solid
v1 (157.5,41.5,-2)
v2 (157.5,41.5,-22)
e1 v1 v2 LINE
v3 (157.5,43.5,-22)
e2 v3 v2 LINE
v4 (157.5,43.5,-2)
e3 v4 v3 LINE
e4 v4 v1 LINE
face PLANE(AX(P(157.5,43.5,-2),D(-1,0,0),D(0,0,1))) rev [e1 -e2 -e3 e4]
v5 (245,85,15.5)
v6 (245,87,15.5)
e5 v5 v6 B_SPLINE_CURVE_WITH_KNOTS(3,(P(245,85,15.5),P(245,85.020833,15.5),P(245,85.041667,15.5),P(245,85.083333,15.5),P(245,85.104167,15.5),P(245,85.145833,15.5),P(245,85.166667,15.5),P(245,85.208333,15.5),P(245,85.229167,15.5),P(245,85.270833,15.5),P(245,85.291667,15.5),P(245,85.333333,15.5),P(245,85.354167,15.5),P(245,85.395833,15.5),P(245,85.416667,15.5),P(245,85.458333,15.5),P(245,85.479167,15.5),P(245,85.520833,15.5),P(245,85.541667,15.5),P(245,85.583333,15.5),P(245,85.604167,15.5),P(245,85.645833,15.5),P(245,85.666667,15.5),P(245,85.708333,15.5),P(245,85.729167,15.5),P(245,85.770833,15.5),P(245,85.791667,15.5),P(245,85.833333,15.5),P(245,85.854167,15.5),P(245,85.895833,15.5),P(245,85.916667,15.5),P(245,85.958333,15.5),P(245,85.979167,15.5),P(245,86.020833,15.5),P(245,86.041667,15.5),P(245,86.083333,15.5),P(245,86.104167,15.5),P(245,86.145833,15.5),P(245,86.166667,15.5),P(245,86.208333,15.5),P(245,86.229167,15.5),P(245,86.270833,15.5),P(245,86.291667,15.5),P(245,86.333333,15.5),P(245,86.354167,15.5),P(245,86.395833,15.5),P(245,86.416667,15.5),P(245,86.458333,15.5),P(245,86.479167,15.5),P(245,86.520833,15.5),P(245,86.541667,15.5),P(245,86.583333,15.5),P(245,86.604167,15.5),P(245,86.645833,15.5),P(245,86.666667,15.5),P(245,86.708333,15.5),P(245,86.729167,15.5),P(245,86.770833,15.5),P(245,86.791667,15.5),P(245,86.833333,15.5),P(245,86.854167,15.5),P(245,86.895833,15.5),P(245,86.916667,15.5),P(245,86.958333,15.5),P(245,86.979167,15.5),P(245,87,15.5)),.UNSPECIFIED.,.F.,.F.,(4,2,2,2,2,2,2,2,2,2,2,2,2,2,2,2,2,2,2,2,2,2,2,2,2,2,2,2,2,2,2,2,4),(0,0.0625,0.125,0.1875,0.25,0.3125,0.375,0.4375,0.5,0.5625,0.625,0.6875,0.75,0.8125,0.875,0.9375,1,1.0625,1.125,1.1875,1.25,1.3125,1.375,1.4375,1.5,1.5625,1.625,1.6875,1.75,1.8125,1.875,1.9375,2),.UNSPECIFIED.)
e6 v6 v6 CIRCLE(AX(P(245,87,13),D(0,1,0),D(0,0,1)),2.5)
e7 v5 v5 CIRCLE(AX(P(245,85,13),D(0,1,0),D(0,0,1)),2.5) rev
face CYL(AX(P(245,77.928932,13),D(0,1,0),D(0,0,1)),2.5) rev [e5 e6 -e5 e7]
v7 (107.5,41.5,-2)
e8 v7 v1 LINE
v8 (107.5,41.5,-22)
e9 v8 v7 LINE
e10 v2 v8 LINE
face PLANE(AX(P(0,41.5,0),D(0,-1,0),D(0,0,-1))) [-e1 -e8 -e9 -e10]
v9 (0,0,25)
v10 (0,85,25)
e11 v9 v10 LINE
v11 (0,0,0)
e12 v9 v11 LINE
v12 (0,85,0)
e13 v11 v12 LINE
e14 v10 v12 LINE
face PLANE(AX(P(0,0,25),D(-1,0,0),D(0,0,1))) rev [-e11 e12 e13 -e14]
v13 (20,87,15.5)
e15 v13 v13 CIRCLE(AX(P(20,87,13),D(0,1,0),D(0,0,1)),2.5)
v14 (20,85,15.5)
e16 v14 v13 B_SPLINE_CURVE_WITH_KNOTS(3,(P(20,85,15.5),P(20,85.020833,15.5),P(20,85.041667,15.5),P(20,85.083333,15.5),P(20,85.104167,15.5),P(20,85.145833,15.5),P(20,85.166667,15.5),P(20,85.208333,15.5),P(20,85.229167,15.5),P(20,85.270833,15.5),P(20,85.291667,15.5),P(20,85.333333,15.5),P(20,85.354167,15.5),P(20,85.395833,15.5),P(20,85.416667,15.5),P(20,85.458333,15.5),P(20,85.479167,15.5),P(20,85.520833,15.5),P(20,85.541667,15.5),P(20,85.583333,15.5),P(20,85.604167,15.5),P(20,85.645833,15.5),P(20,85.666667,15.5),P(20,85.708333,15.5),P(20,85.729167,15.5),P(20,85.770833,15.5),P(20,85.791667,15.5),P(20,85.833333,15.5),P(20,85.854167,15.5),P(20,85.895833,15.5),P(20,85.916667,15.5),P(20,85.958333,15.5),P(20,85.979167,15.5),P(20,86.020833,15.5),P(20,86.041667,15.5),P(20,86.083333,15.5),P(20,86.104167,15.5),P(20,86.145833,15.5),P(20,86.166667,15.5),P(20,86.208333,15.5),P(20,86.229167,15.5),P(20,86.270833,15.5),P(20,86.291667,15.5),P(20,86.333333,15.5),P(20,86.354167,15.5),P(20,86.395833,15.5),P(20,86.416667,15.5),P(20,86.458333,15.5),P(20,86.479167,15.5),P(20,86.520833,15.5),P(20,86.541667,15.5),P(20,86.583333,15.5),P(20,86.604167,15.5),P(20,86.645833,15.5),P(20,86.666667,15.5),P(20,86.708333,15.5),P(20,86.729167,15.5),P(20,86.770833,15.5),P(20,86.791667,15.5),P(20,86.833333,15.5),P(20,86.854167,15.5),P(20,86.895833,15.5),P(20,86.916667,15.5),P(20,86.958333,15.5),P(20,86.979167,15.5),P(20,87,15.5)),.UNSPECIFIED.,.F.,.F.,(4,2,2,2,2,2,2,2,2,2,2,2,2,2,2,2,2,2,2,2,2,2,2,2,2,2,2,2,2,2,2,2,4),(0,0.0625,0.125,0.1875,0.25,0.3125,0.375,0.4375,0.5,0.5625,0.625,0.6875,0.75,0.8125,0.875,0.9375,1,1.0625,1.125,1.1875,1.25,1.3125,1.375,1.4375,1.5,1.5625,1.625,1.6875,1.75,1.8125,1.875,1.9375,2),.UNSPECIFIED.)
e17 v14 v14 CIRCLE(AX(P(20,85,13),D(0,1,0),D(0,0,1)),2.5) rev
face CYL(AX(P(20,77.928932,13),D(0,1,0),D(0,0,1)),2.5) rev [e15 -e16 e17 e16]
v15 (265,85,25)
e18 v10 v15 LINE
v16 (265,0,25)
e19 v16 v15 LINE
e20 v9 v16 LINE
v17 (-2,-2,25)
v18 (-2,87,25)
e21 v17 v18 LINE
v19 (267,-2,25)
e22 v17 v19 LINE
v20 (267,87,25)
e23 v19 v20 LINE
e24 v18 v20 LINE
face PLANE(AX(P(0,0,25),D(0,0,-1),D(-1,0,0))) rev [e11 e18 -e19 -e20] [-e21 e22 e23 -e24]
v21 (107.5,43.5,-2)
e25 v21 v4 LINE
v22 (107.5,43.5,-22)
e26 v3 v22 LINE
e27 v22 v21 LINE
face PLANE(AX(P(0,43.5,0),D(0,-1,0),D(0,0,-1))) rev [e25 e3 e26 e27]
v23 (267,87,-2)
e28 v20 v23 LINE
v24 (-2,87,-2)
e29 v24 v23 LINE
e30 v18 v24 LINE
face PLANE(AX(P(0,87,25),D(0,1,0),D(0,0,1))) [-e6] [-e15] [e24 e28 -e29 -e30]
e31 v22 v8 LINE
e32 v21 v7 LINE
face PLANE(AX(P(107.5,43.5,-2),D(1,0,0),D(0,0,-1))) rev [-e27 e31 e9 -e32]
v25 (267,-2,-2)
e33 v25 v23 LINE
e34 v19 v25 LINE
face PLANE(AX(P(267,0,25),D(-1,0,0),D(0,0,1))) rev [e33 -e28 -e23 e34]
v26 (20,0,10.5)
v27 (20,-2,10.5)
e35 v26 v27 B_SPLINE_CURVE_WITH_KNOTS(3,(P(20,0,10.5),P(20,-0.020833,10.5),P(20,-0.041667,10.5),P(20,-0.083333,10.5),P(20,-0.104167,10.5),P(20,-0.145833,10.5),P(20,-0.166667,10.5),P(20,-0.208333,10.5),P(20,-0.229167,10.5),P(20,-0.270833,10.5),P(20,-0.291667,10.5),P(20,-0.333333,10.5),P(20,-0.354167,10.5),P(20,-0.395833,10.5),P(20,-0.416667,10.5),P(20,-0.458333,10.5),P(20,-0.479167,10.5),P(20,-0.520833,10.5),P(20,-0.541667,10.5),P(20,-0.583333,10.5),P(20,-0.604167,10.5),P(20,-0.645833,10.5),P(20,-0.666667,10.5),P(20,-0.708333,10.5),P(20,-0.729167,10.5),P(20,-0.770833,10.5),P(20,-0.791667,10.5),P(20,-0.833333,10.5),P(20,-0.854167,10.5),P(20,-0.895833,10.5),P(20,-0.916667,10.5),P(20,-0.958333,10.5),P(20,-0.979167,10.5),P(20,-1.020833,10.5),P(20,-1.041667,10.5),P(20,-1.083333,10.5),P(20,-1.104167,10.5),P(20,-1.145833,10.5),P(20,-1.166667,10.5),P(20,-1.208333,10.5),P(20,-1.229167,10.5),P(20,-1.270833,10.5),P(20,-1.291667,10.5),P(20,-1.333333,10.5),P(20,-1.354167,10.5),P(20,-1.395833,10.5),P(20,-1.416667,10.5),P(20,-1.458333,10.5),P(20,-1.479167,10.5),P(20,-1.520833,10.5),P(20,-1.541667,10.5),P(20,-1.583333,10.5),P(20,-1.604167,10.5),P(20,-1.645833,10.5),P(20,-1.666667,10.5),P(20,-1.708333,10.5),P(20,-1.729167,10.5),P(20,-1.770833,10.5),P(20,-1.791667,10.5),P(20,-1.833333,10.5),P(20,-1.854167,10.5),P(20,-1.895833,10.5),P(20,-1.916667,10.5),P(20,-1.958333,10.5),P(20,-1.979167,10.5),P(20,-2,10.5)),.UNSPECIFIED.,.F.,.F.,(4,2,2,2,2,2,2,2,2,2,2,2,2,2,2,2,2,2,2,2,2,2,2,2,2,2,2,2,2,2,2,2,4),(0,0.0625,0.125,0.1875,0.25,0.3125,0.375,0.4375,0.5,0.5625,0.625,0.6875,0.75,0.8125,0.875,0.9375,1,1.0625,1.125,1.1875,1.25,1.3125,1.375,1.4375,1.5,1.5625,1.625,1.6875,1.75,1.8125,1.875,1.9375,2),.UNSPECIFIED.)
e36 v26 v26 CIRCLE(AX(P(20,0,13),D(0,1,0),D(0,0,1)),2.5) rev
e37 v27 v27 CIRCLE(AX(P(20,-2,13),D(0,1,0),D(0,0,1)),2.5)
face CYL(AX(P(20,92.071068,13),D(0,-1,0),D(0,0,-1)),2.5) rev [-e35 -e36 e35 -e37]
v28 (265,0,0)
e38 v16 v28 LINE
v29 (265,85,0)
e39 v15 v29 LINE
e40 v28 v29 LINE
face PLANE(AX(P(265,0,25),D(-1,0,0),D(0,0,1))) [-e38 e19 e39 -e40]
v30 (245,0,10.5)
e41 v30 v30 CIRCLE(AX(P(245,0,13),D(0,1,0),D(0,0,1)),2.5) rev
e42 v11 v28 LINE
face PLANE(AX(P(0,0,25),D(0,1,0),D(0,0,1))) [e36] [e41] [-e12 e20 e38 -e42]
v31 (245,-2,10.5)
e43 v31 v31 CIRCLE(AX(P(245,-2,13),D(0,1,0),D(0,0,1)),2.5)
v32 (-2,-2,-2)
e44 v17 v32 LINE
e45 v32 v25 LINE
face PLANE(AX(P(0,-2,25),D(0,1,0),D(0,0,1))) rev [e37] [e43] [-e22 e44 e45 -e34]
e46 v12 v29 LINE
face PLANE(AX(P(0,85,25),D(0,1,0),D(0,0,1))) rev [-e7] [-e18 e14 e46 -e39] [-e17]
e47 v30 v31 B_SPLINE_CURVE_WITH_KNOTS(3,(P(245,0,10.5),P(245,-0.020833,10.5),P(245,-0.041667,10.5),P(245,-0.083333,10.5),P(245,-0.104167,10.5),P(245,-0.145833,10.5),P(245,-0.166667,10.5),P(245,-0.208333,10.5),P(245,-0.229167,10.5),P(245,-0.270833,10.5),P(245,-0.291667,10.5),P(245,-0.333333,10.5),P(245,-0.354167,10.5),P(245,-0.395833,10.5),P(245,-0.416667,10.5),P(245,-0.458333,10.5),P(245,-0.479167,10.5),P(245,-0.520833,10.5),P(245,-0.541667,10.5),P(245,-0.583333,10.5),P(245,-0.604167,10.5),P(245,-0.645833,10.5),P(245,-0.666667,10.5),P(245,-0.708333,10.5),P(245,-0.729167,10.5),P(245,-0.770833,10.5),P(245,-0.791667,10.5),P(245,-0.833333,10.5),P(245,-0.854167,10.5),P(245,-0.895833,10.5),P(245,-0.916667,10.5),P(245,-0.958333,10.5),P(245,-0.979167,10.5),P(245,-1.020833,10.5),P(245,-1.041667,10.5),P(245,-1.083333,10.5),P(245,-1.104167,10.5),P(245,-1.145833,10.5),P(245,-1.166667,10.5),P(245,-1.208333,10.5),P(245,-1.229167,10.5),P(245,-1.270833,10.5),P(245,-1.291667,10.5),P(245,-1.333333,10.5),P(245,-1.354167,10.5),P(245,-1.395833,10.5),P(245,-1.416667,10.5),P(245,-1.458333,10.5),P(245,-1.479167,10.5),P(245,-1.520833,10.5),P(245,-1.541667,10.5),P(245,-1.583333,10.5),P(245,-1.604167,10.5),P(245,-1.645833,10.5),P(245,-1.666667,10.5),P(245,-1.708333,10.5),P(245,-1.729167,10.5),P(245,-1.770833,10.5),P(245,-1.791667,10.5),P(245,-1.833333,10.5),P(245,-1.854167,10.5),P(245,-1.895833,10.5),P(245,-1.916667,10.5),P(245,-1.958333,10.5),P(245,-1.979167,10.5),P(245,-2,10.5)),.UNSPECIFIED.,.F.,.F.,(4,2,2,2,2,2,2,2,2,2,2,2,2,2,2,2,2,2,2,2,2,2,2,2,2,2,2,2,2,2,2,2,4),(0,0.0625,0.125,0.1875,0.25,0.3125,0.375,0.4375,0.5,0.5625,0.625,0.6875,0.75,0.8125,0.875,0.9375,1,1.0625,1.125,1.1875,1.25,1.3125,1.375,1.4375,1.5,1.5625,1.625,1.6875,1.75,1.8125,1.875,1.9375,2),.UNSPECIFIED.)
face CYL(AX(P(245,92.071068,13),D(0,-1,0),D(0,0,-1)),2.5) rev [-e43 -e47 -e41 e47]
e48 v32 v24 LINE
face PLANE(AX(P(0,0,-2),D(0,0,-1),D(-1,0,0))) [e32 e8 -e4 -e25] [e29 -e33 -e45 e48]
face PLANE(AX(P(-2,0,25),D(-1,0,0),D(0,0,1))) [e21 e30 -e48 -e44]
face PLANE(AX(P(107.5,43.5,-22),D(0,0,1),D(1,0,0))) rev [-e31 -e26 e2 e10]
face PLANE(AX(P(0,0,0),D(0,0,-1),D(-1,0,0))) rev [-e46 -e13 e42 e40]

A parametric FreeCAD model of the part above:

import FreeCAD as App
import Part
import Sketcher
Q = App.Units.Quantity


def faces_at(feature, points):
    """Names of the faces that lie closest to the given points."""
    faces = feature.Shape.Faces
    near = lambda p: min(range(len(faces)), key=lambda i: faces[i].distToShape(Part.Vertex(*p))[0])
    return sorted({f"Face{near(p) + 1}" for p in points})


def add_polygon(sketch, points):
    """Adds a closed chain of lines whose ends are joined by coincident constraints."""
    first, n = sketch.GeometryCount, len(points)
    for a, b in zip(points, points[1:] + points[:1]):
        sketch.addGeometry(Part.LineSegment(App.Vector(*a, 0), App.Vector(*b, 0)), False)
    for i in range(n):
        sketch.addConstraint(Sketcher.Constraint("Coincident", first + i, 2, first + (i + 1) % n, 1))

doc = App.newDocument("Part")
body = doc.addObject("PartDesign::Body", "Body")

sketch1 = doc.addObject("Sketcher::SketchObject", "Sketch")
body.addObject(sketch1)
sketch1.AttachmentSupport = (doc.XY_Plane, [""])
sketch1.MapMode = "FlatFace"
add_polygon(sketch1, [(0, 85), (0, 0), (265, 0), (265, 85)])
sketch1.addConstraint(Sketcher.Constraint("Vertical", 0))
sketch1.addConstraint(Sketcher.Constraint("Horizontal", 1))
sketch1.addConstraint(Sketcher.Constraint("Vertical", 2))
sketch1.addConstraint(Sketcher.Constraint("Horizontal", 3))
sketch1.addConstraint(Sketcher.Constraint("Coincident", 0, 2, -1, 1))
sketch1.addConstraint(Sketcher.Constraint("DistanceX", 1, 1, 1, 2, Q("265 mm")))
sketch1.addConstraint(Sketcher.Constraint("DistanceY", 0, 2, 0, 1, Q("85 mm")))
pad1 = doc.addObject("PartDesign::Pad", "Pad")
body.addObject(pad1)
pad1.Profile = sketch1
pad1.Length = 25
doc.recompute()

thickness = doc.addObject("PartDesign::Thickness", "Thickness")
body.addObject(thickness)
thickness.Base = (pad1, faces_at(pad1, [(132.5, 42.5, 25)]))
thickness.Value = 2
thickness.Reversed = False
thickness.Join = "Intersection"

sketch2 = doc.addObject("Sketcher::SketchObject", "Sketch001")
body.addObject(sketch2)
sketch2.AttachmentSupport = (doc.XZ_Plane, [""])
sketch2.MapMode = "FlatFace"
sketch2.AttachmentOffset = App.Placement(App.Vector(0, 0, -42.5), App.Rotation())
add_polygon(sketch2, [(108, -22), (108, -2), (158, -2), (158, -22)])
sketch2.addConstraint(Sketcher.Constraint("Vertical", 0))
sketch2.addConstraint(Sketcher.Constraint("Horizontal", 1))
sketch2.addConstraint(Sketcher.Constraint("Vertical", 2))
sketch2.addConstraint(Sketcher.Constraint("Horizontal", 3))
sketch2.addConstraint(Sketcher.Constraint("DistanceX", 1, 1, 1, 2, Q("50 mm")))
sketch2.addConstraint(Sketcher.Constraint("DistanceY", 0, 1, 0, 2, Q("20 mm")))
sketch2.addConstraint(Sketcher.Constraint("DistanceY", 0, 2, -1, 1, Q("2 mm")))
sketch2.addConstraint(Sketcher.Constraint("DistanceX", -1, 1, 0, 2, Q("107.5 mm")))
pad2 = doc.addObject("PartDesign::Pad", "Pad001")
body.addObject(pad2)
pad2.Profile = sketch2
pad2.Length = 2
pad2.Midplane = True

sketch3 = doc.addObject("Sketcher::SketchObject", "Sketch002")
body.addObject(sketch3)
sketch3.AttachmentSupport = (doc.XZ_Plane, [""])
sketch3.MapMode = "FlatFace"
sketch3.AttachmentOffset = App.Placement(App.Vector(0, 0, -87), App.Rotation())
sketch3.addGeometry(Part.Circle(App.Vector(245, 13, 0), App.Vector(0, 0, 1), 2.5), False)
sketch3.addGeometry(Part.Circle(App.Vector(20, 13, 0), App.Vector(0, 0, 1), 2.5), False)
sketch3.addConstraint(Sketcher.Constraint("Equal", 0, 1))
sketch3.addConstraint(Sketcher.Constraint("Horizontal", 0, 3, 1, 3))
sketch3.addConstraint(Sketcher.Constraint("Diameter", 0, Q("5 mm")))
sketch3.addConstraint(Sketcher.Constraint("DistanceX", -1, 1, 0, 3, Q("245 mm")))
sketch3.addConstraint(Sketcher.Constraint("DistanceY", -1, 1, 0, 3, Q("13 mm")))
sketch3.addConstraint(Sketcher.Constraint("DistanceX", -1, 1, 1, 3, Q("20 mm")))
pocket1 = doc.addObject("PartDesign::Pocket", "Pocket")
body.addObject(pocket1)
pocket1.Profile = sketch3
pocket1.Length = 87
pocket1.Reversed = True
doc.recompute()

datumplane = doc.addObject("PartDesign::Plane", "DatumPlane")
body.addObject(datumplane)
datumplane.AttachmentSupport = (doc.XZ_Plane, [""])
datumplane.MapMode = "FlatFace"
datumplane.AttachmentOffset = App.Placement(App.Vector(0, 0, -42.5), App.Rotation())
mirrored = doc.addObject("PartDesign::Mirrored", "Mirrored")
body.addObject(mirrored)
mirrored.Originals = [pocket1]
mirrored.MirrorPlane = (datumplane, [""])
body.Tip = mirrored

doc.recompute()
